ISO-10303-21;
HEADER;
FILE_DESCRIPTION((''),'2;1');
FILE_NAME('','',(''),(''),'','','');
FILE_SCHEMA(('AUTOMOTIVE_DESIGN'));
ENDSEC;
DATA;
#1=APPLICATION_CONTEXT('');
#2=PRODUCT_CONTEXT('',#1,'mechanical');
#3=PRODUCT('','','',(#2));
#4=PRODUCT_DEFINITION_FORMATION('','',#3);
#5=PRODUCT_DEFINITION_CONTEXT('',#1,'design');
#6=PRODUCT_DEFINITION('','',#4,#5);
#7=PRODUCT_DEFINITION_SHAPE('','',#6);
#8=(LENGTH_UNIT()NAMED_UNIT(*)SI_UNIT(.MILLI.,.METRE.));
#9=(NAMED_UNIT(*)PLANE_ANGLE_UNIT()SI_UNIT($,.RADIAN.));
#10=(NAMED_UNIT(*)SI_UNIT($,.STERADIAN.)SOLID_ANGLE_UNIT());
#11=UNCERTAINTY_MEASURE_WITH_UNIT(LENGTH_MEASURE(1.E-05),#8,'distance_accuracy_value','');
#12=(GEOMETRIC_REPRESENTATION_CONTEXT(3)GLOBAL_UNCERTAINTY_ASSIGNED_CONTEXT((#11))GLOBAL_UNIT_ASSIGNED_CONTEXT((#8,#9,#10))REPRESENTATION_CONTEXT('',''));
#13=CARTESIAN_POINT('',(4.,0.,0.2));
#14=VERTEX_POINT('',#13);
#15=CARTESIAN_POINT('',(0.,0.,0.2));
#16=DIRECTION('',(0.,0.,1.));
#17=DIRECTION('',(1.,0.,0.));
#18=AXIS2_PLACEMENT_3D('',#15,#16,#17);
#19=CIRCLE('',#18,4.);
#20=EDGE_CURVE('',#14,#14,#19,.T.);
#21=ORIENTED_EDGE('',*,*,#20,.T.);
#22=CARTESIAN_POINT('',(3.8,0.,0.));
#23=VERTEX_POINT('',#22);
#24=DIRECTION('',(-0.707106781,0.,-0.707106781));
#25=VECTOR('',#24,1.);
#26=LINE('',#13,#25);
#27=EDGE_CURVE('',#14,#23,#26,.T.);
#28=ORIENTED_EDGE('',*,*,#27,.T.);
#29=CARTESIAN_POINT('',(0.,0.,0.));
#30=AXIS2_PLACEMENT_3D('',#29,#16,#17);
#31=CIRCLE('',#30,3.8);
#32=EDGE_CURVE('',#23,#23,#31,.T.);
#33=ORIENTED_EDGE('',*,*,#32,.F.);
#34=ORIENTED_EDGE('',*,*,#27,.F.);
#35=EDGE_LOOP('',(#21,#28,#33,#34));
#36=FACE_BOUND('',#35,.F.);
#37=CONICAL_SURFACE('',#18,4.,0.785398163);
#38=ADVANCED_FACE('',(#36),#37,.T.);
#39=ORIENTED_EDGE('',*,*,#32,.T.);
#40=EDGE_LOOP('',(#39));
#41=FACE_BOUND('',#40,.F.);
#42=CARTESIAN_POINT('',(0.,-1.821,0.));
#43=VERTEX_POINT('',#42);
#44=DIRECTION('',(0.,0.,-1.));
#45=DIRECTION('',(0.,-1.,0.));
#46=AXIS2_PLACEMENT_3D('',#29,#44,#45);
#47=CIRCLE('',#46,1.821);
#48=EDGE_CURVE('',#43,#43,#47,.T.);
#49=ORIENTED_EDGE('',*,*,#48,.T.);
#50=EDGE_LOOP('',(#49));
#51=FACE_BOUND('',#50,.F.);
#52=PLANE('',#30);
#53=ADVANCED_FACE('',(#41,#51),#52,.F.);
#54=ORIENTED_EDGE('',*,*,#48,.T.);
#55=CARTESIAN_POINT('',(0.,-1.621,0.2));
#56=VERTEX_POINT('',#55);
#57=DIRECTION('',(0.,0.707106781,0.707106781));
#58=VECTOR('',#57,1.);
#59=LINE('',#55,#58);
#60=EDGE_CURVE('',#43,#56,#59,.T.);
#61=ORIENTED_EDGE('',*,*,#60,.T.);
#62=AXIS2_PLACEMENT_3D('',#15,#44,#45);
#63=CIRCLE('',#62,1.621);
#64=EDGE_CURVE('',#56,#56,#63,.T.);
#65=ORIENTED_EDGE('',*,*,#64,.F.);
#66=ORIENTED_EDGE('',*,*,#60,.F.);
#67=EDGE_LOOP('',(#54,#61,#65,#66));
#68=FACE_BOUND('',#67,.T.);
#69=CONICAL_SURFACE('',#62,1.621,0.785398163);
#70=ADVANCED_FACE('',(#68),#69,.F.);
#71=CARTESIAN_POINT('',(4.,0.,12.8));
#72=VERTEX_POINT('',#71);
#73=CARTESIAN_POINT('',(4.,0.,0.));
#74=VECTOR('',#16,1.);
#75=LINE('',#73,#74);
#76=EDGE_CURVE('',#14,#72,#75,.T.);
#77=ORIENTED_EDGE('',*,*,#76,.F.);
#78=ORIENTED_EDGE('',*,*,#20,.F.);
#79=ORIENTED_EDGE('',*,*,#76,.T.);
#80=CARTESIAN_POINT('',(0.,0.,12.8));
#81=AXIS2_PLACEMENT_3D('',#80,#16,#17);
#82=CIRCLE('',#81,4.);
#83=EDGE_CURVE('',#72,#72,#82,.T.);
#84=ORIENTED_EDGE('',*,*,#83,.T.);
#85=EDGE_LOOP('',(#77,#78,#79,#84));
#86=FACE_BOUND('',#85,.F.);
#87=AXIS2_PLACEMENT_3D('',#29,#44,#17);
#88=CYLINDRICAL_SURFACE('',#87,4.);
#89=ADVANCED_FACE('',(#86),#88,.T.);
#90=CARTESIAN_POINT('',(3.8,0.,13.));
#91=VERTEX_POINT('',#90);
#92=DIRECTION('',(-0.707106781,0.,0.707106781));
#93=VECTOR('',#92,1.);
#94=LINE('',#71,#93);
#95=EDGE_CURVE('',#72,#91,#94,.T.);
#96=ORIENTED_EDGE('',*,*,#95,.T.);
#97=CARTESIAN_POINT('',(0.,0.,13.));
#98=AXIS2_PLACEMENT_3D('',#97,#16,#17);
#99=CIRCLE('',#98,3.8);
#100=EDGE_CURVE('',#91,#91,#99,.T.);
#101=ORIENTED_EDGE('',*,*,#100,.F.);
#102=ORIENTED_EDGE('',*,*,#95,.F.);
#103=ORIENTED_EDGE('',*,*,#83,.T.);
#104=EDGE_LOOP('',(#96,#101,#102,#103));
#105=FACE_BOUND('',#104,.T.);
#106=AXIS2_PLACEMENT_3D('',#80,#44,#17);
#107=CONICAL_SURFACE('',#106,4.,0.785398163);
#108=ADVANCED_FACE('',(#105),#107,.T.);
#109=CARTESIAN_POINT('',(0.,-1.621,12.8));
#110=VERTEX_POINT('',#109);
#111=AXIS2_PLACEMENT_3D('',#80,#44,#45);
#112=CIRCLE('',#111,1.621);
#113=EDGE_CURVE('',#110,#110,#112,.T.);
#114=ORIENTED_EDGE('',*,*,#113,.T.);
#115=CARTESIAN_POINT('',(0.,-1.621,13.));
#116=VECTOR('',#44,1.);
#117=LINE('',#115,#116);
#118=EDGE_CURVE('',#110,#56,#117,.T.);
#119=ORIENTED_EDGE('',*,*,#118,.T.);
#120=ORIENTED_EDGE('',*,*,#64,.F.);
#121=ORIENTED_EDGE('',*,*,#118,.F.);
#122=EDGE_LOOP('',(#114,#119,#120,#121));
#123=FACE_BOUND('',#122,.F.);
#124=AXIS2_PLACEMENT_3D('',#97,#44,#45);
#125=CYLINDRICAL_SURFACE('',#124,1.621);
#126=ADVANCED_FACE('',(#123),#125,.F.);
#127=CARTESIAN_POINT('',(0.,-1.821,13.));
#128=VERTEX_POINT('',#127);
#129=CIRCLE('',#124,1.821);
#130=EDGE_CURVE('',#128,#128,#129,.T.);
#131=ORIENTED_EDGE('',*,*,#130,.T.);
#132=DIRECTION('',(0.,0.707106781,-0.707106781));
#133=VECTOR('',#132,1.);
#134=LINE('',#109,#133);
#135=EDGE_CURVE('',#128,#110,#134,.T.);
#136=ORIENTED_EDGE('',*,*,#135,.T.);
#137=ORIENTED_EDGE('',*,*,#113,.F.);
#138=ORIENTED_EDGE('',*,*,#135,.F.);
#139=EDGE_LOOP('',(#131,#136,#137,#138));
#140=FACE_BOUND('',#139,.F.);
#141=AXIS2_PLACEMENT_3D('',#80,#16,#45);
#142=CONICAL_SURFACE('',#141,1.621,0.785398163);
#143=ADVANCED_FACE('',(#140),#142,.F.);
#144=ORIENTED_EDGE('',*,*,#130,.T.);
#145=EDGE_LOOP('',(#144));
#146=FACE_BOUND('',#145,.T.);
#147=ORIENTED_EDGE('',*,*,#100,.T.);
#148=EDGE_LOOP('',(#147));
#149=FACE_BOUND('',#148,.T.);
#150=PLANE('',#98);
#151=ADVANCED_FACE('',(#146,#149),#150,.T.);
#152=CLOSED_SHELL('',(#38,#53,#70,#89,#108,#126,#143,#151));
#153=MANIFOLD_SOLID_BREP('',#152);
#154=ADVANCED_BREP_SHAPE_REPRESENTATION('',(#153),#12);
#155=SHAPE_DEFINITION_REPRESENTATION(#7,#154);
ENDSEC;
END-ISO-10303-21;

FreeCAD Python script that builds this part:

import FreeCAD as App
import Part
import Sketcher
from FreeCAD import Vector


def edges_at(feature, points):
    """Names of the edges that pass closest to the given points."""
    edges = feature.Shape.Edges
    near = lambda p: min(range(len(edges)), key=lambda i: edges[i].distToShape(Part.Vertex(*p))[0])
    return sorted({f"Edge{near(p) + 1}" for p in points})

doc = App.newDocument("Part")
body = doc.addObject("PartDesign::Body", "Body")

sketch1 = body.newObject("Sketcher::SketchObject", "Sketch")
sketch1.AttachmentSupport = (doc.getObject("XY_Plane"), [""])
sketch1.MapMode = "FlatFace"
sketch1.addGeometry(Part.Circle(Vector(0, 0, 0), Vector(0, 0, 1), 4), False)
sketch1.addConstraint([
    Sketcher.Constraint("Coincident", 0, 3, -1, 1),
    Sketcher.Constraint("Diameter", 0, 8.0),
])
pad1 = body.newObject("PartDesign::Pad", "Pad")
pad1.Profile = sketch1
pad1.Length = 13

sketch2 = body.newObject("Sketcher::SketchObject", "Sketch001")
sketch2.AttachmentSupport = (doc.getObject("XY_Plane"), [""])
sketch2.MapMode = "FlatFace"
sketch2.AttachmentOffset = App.Placement(Vector(0, 0, 13), App.Rotation())
sketch2.addGeometry(Part.Circle(Vector(0, 0, 0), Vector(0, 0, 1), 1.621), False)
sketch2.addConstraint([
    Sketcher.Constraint("Coincident", 0, 3, -1, 1),
    Sketcher.Constraint("Diameter", 0, 3.242),
])
doc.recompute()
hole = body.newObject("PartDesign::Hole", "Hole")
hole.Profile = sketch2
hole.ThreadType = "None"
hole.Diameter = 3.242
hole.DepthType = "ThroughAll"
doc.recompute()

chamfer = body.newObject("PartDesign::Chamfer", "Chamfer")
chamfer.Base = (hole, edges_at(hole, [
    (0, 1.621, 13),
    (0, 1.621, 0),
    (-4, 0, 13),
    (-4, 0, 0),
]))
chamfer.Size = 0.2

doc.recompute()
